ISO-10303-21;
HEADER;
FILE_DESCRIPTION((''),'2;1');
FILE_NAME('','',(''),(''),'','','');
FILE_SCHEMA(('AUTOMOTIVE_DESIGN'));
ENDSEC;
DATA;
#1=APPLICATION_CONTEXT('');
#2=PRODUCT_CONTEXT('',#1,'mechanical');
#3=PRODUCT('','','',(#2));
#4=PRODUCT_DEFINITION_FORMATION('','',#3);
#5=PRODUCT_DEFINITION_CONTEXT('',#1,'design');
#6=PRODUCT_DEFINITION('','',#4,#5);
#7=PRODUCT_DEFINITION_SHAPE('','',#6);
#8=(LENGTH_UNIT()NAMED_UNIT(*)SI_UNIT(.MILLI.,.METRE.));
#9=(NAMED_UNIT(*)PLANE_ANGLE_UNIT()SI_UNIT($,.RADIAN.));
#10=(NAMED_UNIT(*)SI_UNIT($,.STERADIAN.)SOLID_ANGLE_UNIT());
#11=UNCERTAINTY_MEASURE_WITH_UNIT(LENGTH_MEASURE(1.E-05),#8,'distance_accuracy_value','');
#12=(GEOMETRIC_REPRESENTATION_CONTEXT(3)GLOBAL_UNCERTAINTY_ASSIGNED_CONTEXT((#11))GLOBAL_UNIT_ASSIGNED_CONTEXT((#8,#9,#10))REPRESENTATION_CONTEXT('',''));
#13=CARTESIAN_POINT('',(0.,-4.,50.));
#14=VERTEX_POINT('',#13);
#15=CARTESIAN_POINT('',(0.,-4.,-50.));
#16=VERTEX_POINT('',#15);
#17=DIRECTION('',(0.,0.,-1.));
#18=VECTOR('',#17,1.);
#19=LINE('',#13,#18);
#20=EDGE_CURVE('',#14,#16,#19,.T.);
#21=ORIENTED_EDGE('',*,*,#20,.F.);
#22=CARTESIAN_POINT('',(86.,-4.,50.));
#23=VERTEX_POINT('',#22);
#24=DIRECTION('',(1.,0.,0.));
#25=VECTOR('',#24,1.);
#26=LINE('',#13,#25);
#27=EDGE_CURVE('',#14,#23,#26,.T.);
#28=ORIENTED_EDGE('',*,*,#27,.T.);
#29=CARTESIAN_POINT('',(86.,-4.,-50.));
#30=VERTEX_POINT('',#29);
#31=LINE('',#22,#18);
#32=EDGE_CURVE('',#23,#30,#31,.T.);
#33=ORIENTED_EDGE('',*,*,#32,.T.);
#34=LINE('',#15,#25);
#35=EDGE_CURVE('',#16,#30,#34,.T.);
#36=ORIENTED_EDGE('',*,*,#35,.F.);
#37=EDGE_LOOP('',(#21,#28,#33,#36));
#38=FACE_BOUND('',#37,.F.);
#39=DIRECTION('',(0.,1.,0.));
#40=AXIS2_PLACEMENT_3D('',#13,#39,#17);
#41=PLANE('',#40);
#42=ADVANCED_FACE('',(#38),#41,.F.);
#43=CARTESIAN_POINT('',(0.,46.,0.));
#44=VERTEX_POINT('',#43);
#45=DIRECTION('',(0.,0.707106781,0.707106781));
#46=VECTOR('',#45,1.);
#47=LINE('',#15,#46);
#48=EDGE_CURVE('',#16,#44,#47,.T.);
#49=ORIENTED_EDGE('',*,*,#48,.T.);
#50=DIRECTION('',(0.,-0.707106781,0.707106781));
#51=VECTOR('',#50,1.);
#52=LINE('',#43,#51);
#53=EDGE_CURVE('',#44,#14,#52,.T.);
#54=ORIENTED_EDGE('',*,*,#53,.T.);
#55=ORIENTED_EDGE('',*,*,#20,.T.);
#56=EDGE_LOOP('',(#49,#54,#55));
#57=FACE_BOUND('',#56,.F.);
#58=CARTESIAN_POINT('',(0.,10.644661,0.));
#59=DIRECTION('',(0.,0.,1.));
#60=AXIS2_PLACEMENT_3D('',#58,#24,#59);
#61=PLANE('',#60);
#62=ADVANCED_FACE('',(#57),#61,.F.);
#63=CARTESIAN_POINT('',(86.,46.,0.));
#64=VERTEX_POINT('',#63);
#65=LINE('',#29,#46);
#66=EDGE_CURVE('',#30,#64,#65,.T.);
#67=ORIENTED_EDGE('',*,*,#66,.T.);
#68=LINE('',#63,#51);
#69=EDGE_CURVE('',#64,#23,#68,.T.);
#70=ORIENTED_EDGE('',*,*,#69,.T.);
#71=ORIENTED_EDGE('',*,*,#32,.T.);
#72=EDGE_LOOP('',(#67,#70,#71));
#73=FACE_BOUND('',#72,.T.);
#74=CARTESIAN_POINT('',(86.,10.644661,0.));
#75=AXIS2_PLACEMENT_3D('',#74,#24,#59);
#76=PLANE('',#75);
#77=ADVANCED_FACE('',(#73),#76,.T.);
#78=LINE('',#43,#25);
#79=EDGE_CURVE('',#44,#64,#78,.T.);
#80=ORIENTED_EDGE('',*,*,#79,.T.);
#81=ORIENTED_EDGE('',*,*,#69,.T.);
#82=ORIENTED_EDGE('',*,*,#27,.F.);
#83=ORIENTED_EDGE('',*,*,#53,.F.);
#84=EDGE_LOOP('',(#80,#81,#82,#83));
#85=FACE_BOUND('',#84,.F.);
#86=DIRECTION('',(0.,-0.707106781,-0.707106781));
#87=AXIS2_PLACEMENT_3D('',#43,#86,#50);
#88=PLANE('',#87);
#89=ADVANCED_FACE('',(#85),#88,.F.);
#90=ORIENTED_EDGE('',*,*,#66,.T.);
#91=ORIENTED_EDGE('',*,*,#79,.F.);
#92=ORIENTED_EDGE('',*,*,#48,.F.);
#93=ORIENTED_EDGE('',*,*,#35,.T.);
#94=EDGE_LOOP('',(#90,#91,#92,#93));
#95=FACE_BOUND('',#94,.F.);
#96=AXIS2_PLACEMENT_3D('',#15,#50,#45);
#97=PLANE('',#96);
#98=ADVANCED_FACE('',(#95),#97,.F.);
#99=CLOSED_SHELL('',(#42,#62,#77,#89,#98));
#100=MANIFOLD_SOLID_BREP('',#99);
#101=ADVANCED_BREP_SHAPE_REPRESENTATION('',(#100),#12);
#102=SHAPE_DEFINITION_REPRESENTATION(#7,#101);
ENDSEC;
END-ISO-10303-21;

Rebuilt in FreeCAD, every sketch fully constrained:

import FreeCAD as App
import Part
import Sketcher

V = App.Vector


def add_polygon(sketch, points):
    """Adds a closed chain of lines whose ends are joined by coincident constraints."""
    first, n = sketch.GeometryCount, len(points)
    for a, b in zip(points, points[1:] + points[:1]):
        sketch.addGeometry(Part.LineSegment(App.Vector(*a, 0), App.Vector(*b, 0)), False)
    for i in range(n):
        sketch.addConstraint(Sketcher.Constraint("Coincident", first + i, 2, first + (i + 1) % n, 1))

doc = App.newDocument("Part")
body = doc.addObject("PartDesign::Body", "Body")

# Sketch on YZ plane
sketch1 = body.newObject("Sketcher::SketchObject", "Sketch")
sketch1.AttachmentSupport = (doc.getObject("YZ_Plane"), [""])
sketch1.MapMode = "FlatFace"
add_polygon(sketch1, [(46, 0), (-4, 50), (-4, -50)])  # lines 0-2
sketch1.addConstraint([
    Sketcher.Constraint("Vertical", 1),
    Sketcher.Constraint("PointOnObject", 2, 2, -1),
    Sketcher.Constraint("Perpendicular", 0, 2),
    Sketcher.Constraint("Equal", 0, 2),
    Sketcher.Constraint("DistanceX", 0, 2, -1, 1, 4.0),
    Sketcher.Constraint("DistanceY", 1, 2, 1, 1, 100.0),
])
pad1 = body.newObject("PartDesign::Pad", "Pad")
pad1.Profile = sketch1
pad1.Length = 86

doc.recompute()
